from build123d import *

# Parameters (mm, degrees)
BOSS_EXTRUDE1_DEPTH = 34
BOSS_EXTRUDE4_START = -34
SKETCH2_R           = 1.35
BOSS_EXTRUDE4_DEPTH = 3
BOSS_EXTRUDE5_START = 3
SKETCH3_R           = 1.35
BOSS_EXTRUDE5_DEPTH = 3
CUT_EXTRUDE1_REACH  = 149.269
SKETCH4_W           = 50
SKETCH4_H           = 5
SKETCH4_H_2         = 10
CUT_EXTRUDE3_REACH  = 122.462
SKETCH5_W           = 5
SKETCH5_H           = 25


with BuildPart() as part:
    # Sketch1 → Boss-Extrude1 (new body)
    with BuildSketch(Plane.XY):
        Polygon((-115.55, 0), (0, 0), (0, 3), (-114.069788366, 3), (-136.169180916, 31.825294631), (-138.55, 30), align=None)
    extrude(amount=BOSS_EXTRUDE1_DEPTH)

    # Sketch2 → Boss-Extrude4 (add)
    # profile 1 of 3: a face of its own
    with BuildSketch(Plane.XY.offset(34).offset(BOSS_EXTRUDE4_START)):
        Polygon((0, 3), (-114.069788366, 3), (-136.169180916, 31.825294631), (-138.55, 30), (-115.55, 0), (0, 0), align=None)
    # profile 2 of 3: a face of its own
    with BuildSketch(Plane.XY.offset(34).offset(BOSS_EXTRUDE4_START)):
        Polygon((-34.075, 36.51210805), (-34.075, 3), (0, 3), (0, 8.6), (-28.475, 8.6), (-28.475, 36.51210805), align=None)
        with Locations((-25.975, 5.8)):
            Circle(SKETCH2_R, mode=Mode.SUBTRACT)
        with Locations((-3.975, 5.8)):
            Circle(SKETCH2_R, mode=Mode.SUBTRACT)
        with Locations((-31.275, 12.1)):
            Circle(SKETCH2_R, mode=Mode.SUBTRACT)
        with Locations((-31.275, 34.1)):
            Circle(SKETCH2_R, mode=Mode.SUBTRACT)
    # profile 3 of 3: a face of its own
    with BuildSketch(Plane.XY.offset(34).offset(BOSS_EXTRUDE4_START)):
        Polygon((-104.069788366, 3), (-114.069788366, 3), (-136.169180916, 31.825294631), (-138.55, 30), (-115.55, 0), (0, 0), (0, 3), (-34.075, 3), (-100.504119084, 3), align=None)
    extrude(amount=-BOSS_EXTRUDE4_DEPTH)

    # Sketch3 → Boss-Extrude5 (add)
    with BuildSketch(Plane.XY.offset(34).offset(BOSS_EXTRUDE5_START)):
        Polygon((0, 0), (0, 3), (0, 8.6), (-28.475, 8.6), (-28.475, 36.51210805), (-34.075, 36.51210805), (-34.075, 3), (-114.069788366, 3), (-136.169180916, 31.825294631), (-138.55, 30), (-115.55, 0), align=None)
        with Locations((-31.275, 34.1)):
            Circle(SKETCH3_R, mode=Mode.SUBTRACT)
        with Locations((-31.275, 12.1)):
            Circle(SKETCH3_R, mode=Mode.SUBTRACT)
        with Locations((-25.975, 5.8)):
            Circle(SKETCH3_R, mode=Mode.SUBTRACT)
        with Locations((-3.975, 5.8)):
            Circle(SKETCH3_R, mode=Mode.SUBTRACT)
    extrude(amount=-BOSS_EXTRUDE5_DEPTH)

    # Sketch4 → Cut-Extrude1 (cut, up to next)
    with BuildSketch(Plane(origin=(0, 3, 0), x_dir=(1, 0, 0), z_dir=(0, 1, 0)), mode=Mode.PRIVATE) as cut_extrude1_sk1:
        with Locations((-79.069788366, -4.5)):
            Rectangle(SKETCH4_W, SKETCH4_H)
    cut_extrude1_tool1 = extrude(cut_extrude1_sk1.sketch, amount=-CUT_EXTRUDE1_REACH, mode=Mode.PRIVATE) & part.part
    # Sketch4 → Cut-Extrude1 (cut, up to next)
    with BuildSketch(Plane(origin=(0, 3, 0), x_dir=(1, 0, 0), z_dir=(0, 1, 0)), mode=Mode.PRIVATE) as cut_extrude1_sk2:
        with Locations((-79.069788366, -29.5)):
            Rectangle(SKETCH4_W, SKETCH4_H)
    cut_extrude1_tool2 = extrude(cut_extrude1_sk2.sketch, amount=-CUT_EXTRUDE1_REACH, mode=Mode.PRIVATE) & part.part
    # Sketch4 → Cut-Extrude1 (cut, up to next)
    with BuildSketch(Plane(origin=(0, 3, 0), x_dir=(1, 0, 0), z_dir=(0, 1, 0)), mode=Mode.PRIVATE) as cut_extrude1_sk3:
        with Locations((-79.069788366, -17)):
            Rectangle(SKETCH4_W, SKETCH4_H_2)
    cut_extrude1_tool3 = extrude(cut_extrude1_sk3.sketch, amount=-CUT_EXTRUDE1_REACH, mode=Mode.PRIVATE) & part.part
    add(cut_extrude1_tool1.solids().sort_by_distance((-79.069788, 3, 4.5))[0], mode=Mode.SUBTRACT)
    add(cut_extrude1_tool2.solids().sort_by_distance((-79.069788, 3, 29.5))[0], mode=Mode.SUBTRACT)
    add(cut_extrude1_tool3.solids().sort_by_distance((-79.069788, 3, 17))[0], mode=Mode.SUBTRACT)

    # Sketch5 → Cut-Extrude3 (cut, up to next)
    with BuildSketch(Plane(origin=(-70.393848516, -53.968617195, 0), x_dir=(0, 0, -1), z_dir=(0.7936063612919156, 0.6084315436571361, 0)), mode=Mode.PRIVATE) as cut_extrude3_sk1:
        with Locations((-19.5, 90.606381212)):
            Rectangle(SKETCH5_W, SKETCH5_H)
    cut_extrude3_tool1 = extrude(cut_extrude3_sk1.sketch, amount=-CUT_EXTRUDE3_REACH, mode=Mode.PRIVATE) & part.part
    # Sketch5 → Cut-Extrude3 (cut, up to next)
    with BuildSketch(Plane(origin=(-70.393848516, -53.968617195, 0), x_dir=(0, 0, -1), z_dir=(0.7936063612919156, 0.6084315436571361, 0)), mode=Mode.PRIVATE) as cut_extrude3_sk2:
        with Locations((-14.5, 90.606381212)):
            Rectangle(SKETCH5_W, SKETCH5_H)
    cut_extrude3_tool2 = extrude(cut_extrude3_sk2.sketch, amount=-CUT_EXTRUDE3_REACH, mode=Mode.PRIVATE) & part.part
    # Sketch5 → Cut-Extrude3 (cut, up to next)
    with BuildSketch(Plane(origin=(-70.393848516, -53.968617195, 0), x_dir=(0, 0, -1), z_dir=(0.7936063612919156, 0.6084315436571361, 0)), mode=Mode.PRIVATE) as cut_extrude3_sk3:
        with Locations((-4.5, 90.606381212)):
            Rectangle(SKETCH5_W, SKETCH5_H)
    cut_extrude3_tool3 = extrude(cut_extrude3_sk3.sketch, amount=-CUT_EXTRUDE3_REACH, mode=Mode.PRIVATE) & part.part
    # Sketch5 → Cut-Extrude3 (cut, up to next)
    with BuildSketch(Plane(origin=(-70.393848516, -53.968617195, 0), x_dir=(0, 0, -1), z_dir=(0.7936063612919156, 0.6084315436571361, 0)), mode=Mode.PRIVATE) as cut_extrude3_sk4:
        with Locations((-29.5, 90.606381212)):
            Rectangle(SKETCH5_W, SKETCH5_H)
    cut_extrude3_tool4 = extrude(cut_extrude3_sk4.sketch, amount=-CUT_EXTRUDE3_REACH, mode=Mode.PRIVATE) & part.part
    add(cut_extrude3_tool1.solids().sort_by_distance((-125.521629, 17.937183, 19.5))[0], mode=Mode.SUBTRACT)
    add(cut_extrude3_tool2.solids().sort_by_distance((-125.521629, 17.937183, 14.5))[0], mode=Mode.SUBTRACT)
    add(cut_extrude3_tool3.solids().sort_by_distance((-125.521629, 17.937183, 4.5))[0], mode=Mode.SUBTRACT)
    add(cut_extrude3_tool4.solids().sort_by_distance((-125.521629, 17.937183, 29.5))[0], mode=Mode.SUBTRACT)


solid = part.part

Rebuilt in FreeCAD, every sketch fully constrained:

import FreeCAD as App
import Part
import Sketcher
Q = App.Units.Quantity


def add_polygon(sketch, points):
    """Adds a closed chain of lines whose ends are joined by coincident constraints."""
    first, n = sketch.GeometryCount, len(points)
    for a, b in zip(points, points[1:] + points[:1]):
        sketch.addGeometry(Part.LineSegment(App.Vector(*a, 0), App.Vector(*b, 0)), False)
    for i in range(n):
        sketch.addConstraint(Sketcher.Constraint("Coincident", first + i, 2, first + (i + 1) % n, 1))

doc = App.newDocument("Part")
params = doc.addObject("Spreadsheet::Sheet", "Params")
for row, (alias, value) in enumerate([
    ("sketch1_height", "3 mm"),
    ("sketch1_length", "3 mm"),
    ("sketch1_width", "115.55 mm"),
    ("pad1_length", "34 mm"),
    ("sketch2_diameter", "2.7 mm"),
    ("sketch2_length", "3 mm"),
    ("sketch2_width", "5.6 mm"),
    ("sketch2_height", "8.6 mm"),
    ("sketch2_width2", "115.55 mm"),
    ("pad2_length", "3 mm"),
    ("sketch3_diameter", "2.7 mm"),
    ("sketch3_length", "3 mm"),
    ("sketch3_width", "5.6 mm"),
    ("sketch3_height", "8.6 mm"),
    ("sketch3_width2", "115.55 mm"),
    ("pad3_length", "3 mm"),
    ("sketch4_width", "50 mm"),
    ("sketch4_height", "5 mm"),
    ("sketch5_width", "50 mm"),
    ("sketch5_height", "5 mm"),
    ("sketch6_width", "50 mm"),
    ("sketch6_height", "10 mm"),
    ("sketch7_width", "5 mm"),
    ("sketch7_height", "25 mm"),
    ("sketch8_width", "5 mm"),
    ("sketch8_height", "25 mm"),
    ("sketch9_width", "5 mm"),
    ("sketch9_height", "25 mm"),
    ("sketch10_width", "5 mm"),
    ("sketch10_height", "25 mm"),
], start=1):
    params.set(f"A{row}", alias)
    params.set(f"B{row}", "=" + value)
    params.setAlias(f"B{row}", alias)

body = doc.addObject("PartDesign::Body", "Body")

# Sketch on XY plane
sketch1 = doc.addObject("Sketcher::SketchObject", "Sketch")
body.addObject(sketch1)
sketch1.AttachmentSupport = (doc.XY_Plane, [""])
sketch1.MapMode = "FlatFace"
add_polygon(sketch1, [(-115.5, 0), (0, 0), (0, 3), (-114.1, 3), (-136.2, 31.8), (-138.6, 30)])  # lines 0-5
sketch1.addConstraint(Sketcher.Constraint("Horizontal", 0))
sketch1.addConstraint(Sketcher.Constraint("Vertical", 1))
sketch1.addConstraint(Sketcher.Constraint("Horizontal", 2))
sketch1.addConstraint(Sketcher.Constraint("Coincident", 0, 2, -1, 1))
sketch1.addConstraint(Sketcher.Constraint("Perpendicular", 3, 4))
sketch1.addConstraint(Sketcher.Constraint("Perpendicular", 4, 5))
sketch1.addConstraint(Sketcher.Constraint("DistanceY", 1, 1, 1, 2, Q("3 mm")))
sketch1.addConstraint(Sketcher.Constraint("Distance", 4, Q("3 mm")))
sketch1.addConstraint(Sketcher.Constraint("DistanceY", -1, 1, 4, 2, Q("30 mm")))
sketch1.addConstraint(Sketcher.Constraint("DistanceX", 4, 2, 5, 2, Q("23 mm")))
sketch1.addConstraint(Sketcher.Constraint("DistanceX", 0, 1, 0, 2, Q("115.55 mm")))
sketch1.setExpression("Constraints[12]", "Params.sketch1_height")
sketch1.setExpression("Constraints[13]", "Params.sketch1_length")
sketch1.setExpression("Constraints[16]", "Params.sketch1_width")
pad1 = doc.addObject("PartDesign::Pad", "Pad")
body.addObject(pad1)
pad1.Profile = sketch1
pad1.setExpression("Length", "Params.pad1_length")

# Sketch on XY plane
sketch2 = doc.addObject("Sketcher::SketchObject", "Sketch001")
body.addObject(sketch2)
sketch2.AttachmentSupport = (doc.XY_Plane, [""])
sketch2.MapMode = "FlatFace"
add_polygon(sketch2, [(-34.1, 3), (-114.1, 3), (-136.2, 31.8), (-138.6, 30), (-115.5, 0), (0, 0), (0, 8.6), (-28.5, 8.6), (-28.5, 36.5), (-34.1, 36.5)])  # lines 0-9
sketch2.addGeometry(Part.Circle(App.Vector(-31.3, 34.1, 0), App.Vector(0, 0, 1), 1.4), False)  # 10
sketch2.addGeometry(Part.Circle(App.Vector(-26, 5.8, 0), App.Vector(0, 0, 1), 1.4), False)  # 11
sketch2.addGeometry(Part.Circle(App.Vector(-31.3, 12.1, 0), App.Vector(0, 0, 1), 1.4), False)  # 12
sketch2.addGeometry(Part.Circle(App.Vector(-4, 5.8, 0), App.Vector(0, 0, 1), 1.4), False)  # 13
sketch2.addConstraint(Sketcher.Constraint("Horizontal", 0))
sketch2.addConstraint(Sketcher.Constraint("Horizontal", 4))
sketch2.addConstraint(Sketcher.Constraint("Vertical", 5))
sketch2.addConstraint(Sketcher.Constraint("Horizontal", 6))
sketch2.addConstraint(Sketcher.Constraint("Vertical", 7))
sketch2.addConstraint(Sketcher.Constraint("Horizontal", 8))
sketch2.addConstraint(Sketcher.Constraint("Vertical", 9))
sketch2.addConstraint(Sketcher.Constraint("Coincident", 4, 2, -1, 1))
sketch2.addConstraint(Sketcher.Constraint("Equal", 10, 11))
sketch2.addConstraint(Sketcher.Constraint("Equal", 11, 12))
sketch2.addConstraint(Sketcher.Constraint("Equal", 12, 13))
sketch2.addConstraint(Sketcher.Constraint("Perpendicular", 1, 2))
sketch2.addConstraint(Sketcher.Constraint("Perpendicular", 2, 3))
sketch2.addConstraint(Sketcher.Constraint("Horizontal", 11, 3, 13, 3))
sketch2.addConstraint(Sketcher.Constraint("Vertical", 10, 3, 12, 3))
sketch2.addConstraint(Sketcher.Constraint("Diameter", 10, Q("2.7 mm")))
sketch2.addConstraint(Sketcher.Constraint("Distance", 2, Q("3 mm")))
sketch2.addConstraint(Sketcher.Constraint("DistanceX", 8, 2, 8, 1, Q("5.6 mm")))
sketch2.addConstraint(Sketcher.Constraint("DistanceY", 5, 1, 5, 2, Q("8.6 mm")))
sketch2.addConstraint(Sketcher.Constraint("DistanceY", -1, 1, 0, 2, Q("3 mm")))
sketch2.addConstraint(Sketcher.Constraint("DistanceY", -1, 1, 2, 2, Q("30 mm")))
sketch2.addConstraint(Sketcher.Constraint("DistanceY", 12, 3, 10, 3, Q("22 mm")))
sketch2.addConstraint(Sketcher.Constraint("DistanceX", 11, 3, 13, 3, Q("22 mm")))
sketch2.addConstraint(Sketcher.Constraint("DistanceX", 2, 2, 3, 2, Q("23 mm")))
sketch2.addConstraint(Sketcher.Constraint("DistanceX", 4, 1, 4, 2, Q("115.55 mm")))
sketch2.addConstraint(Sketcher.Constraint("DistanceY", -1, 1, 10, 3, Q("34.1 mm")))
sketch2.addConstraint(Sketcher.Constraint("DistanceY", -1, 1, 11, 3, Q("5.8 mm")))
sketch2.addConstraint(Sketcher.Constraint("DistanceX", 10, 3, 11, 3, Q("5.3 mm")))
sketch2.addConstraint(Sketcher.Constraint("DistanceX", 6, 2, 11, 3, Q("2.5 mm")))
sketch2.addConstraint(Sketcher.Constraint("DistanceX", 6, 2, 6, 1, Q("28.475 mm")))
sketch2.addConstraint(Sketcher.Constraint("DistanceY", 7, 1, 7, 2, Q("27.912108 mm")))
sketch2.setExpression("Constraints[25]", "Params.sketch2_diameter")
sketch2.setExpression("Constraints[26]", "Params.sketch2_length")
sketch2.setExpression("Constraints[27]", "Params.sketch2_width")
sketch2.setExpression("Constraints[28]", "Params.sketch2_height")
sketch2.setExpression("Constraints[34]", "Params.sketch2_width2")
pad2 = doc.addObject("PartDesign::Pad", "Pad001")
body.addObject(pad2)
pad2.Profile = sketch2
pad2.setExpression("Length", "Params.pad2_length")
pad2.Reversed = True

# Sketch on XY plane
sketch3 = doc.addObject("Sketcher::SketchObject", "Sketch002")
body.addObject(sketch3)
sketch3.AttachmentSupport = (doc.XY_Plane, [""])
sketch3.MapMode = "FlatFace"
sketch3.AttachmentOffset = App.Placement(App.Vector(0, 0, 37), App.Rotation())
add_polygon(sketch3, [(0, 0), (0, 8.6), (-28.5, 8.6), (-28.5, 36.5), (-34.1, 36.5), (-34.1, 3), (-114.1, 3), (-136.2, 31.8), (-138.6, 30), (-115.5, 0)])  # lines 0-9
sketch3.addGeometry(Part.Circle(App.Vector(-26, 5.8, 0), App.Vector(0, 0, 1), 1.4), False)  # 10
sketch3.addGeometry(Part.Circle(App.Vector(-31.3, 12.1, 0), App.Vector(0, 0, 1), 1.4), False)  # 11
sketch3.addGeometry(Part.Circle(App.Vector(-4, 5.8, 0), App.Vector(0, 0, 1), 1.4), False)  # 12
sketch3.addGeometry(Part.Circle(App.Vector(-31.3, 34.1, 0), App.Vector(0, 0, 1), 1.4), False)  # 13
sketch3.addConstraint(Sketcher.Constraint("Vertical", 0))
sketch3.addConstraint(Sketcher.Constraint("Horizontal", 1))
sketch3.addConstraint(Sketcher.Constraint("Vertical", 2))
sketch3.addConstraint(Sketcher.Constraint("Horizontal", 3))
sketch3.addConstraint(Sketcher.Constraint("Vertical", 4))
sketch3.addConstraint(Sketcher.Constraint("Horizontal", 5))
sketch3.addConstraint(Sketcher.Constraint("Horizontal", 9))
sketch3.addConstraint(Sketcher.Constraint("Coincident", 9, 2, -1, 1))
sketch3.addConstraint(Sketcher.Constraint("Equal", 10, 11))
sketch3.addConstraint(Sketcher.Constraint("Equal", 11, 12))
sketch3.addConstraint(Sketcher.Constraint("Equal", 12, 13))
sketch3.addConstraint(Sketcher.Constraint("Perpendicular", 6, 7))
sketch3.addConstraint(Sketcher.Constraint("Perpendicular", 7, 8))
sketch3.addConstraint(Sketcher.Constraint("Horizontal", 10, 3, 12, 3))
sketch3.addConstraint(Sketcher.Constraint("Vertical", 11, 3, 13, 3))
sketch3.addConstraint(Sketcher.Constraint("Diameter", 10, Q("2.7 mm")))
sketch3.addConstraint(Sketcher.Constraint("Distance", 7, Q("3 mm")))
sketch3.addConstraint(Sketcher.Constraint("DistanceX", 3, 2, 3, 1, Q("5.6 mm")))
sketch3.addConstraint(Sketcher.Constraint("DistanceY", 0, 1, 0, 2, Q("8.6 mm")))
sketch3.addConstraint(Sketcher.Constraint("DistanceY", -1, 1, 4, 2, Q("3 mm")))
sketch3.addConstraint(Sketcher.Constraint("DistanceY", -1, 1, 7, 2, Q("30 mm")))
sketch3.addConstraint(Sketcher.Constraint("DistanceX", 10, 3, 12, 3, Q("22 mm")))
sketch3.addConstraint(Sketcher.Constraint("DistanceY", 11, 3, 13, 3, Q("22 mm")))
sketch3.addConstraint(Sketcher.Constraint("DistanceX", 7, 2, 8, 2, Q("23 mm")))
sketch3.addConstraint(Sketcher.Constraint("DistanceX", 9, 1, 9, 2, Q("115.55 mm")))
sketch3.addConstraint(Sketcher.Constraint("DistanceY", -1, 1, 10, 3, Q("5.8 mm")))
sketch3.addConstraint(Sketcher.Constraint("DistanceY", -1, 1, 11, 3, Q("12.1 mm")))
sketch3.addConstraint(Sketcher.Constraint("DistanceX", 11, 3, 10, 3, Q("5.3 mm")))
sketch3.addConstraint(Sketcher.Constraint("DistanceX", 1, 2, 10, 3, Q("2.5 mm")))
sketch3.addConstraint(Sketcher.Constraint("DistanceX", 1, 2, 1, 1, Q("28.475 mm")))
sketch3.addConstraint(Sketcher.Constraint("DistanceY", 2, 1, 2, 2, Q("27.912108 mm")))
sketch3.setExpression("Constraints[25]", "Params.sketch3_diameter")
sketch3.setExpression("Constraints[26]", "Params.sketch3_length")
sketch3.setExpression("Constraints[27]", "Params.sketch3_width")
sketch3.setExpression("Constraints[28]", "Params.sketch3_height")
sketch3.setExpression("Constraints[34]", "Params.sketch3_width2")
pad3 = doc.addObject("PartDesign::Pad", "Pad002")
body.addObject(pad3)
pad3.Profile = sketch3
pad3.setExpression("Length", "Params.pad3_length")
pad3.Reversed = True

# Sketch on XZ plane
sketch4 = doc.addObject("Sketcher::SketchObject", "Sketch003")
body.addObject(sketch4)
sketch4.AttachmentSupport = (doc.XZ_Plane, [""])
sketch4.MapMode = "FlatFace"
sketch4.AttachmentOffset = App.Placement(App.Vector(0, 0, -3), App.Rotation())
add_polygon(sketch4, [(-104, 2), (-104, 7), (-54, 7), (-54, 2)])  # lines 0-3
sketch4.addConstraint(Sketcher.Constraint("Vertical", 0))
sketch4.addConstraint(Sketcher.Constraint("Horizontal", 1))
sketch4.addConstraint(Sketcher.Constraint("Vertical", 2))
sketch4.addConstraint(Sketcher.Constraint("Horizontal", 3))
sketch4.addConstraint(Sketcher.Constraint("DistanceX", 1, 1, 1, 2, Q("50 mm")))
sketch4.addConstraint(Sketcher.Constraint("DistanceY", 0, 1, 0, 2, Q("5 mm")))
sketch4.addConstraint(Sketcher.Constraint("DistanceY", -1, 1, 0, 2, Q("7 mm")))
sketch4.addConstraint(Sketcher.Constraint("DistanceX", 0, 2, -1, 1, Q("104.069788 mm")))
sketch4.setExpression("Constraints[8]", "Params.sketch4_width")
sketch4.setExpression("Constraints[9]", "Params.sketch4_height")
pocket1 = doc.addObject("PartDesign::Pocket", "Pocket")
body.addObject(pocket1)
pocket1.Profile = sketch4
pocket1.Type = "UpToFirst"
pocket1.Reversed = True

# Sketch on XZ plane
sketch5 = doc.addObject("Sketcher::SketchObject", "Sketch004")
body.addObject(sketch5)
sketch5.AttachmentSupport = (doc.XZ_Plane, [""])
sketch5.MapMode = "FlatFace"
sketch5.AttachmentOffset = App.Placement(App.Vector(0, 0, -3), App.Rotation())
add_polygon(sketch5, [(-104, 27), (-104, 32), (-54, 32), (-54, 27)])  # lines 0-3
sketch5.addConstraint(Sketcher.Constraint("Vertical", 0))
sketch5.addConstraint(Sketcher.Constraint("Horizontal", 1))
sketch5.addConstraint(Sketcher.Constraint("Vertical", 2))
sketch5.addConstraint(Sketcher.Constraint("Horizontal", 3))
sketch5.addConstraint(Sketcher.Constraint("DistanceX", 1, 1, 1, 2, Q("50 mm")))
sketch5.addConstraint(Sketcher.Constraint("DistanceY", 0, 1, 0, 2, Q("5 mm")))
sketch5.addConstraint(Sketcher.Constraint("DistanceY", -1, 1, 0, 2, Q("32 mm")))
sketch5.addConstraint(Sketcher.Constraint("DistanceX", 0, 2, -1, 1, Q("104.069788 mm")))
sketch5.setExpression("Constraints[8]", "Params.sketch5_width")
sketch5.setExpression("Constraints[9]", "Params.sketch5_height")
pocket2 = doc.addObject("PartDesign::Pocket", "Pocket001")
body.addObject(pocket2)
pocket2.Profile = sketch5
pocket2.Type = "UpToFirst"
pocket2.Reversed = True

# Sketch on XZ plane
sketch6 = doc.addObject("Sketcher::SketchObject", "Sketch005")
body.addObject(sketch6)
sketch6.AttachmentSupport = (doc.XZ_Plane, [""])
sketch6.MapMode = "FlatFace"
sketch6.AttachmentOffset = App.Placement(App.Vector(0, 0, -3), App.Rotation())
add_polygon(sketch6, [(-104, 12), (-104, 22), (-54, 22), (-54, 12)])  # lines 0-3
sketch6.addConstraint(Sketcher.Constraint("Vertical", 0))
sketch6.addConstraint(Sketcher.Constraint("Horizontal", 1))
sketch6.addConstraint(Sketcher.Constraint("Vertical", 2))
sketch6.addConstraint(Sketcher.Constraint("Horizontal", 3))
sketch6.addConstraint(Sketcher.Constraint("DistanceX", 1, 1, 1, 2, Q("50 mm")))
sketch6.addConstraint(Sketcher.Constraint("DistanceY", 0, 1, 0, 2, Q("10 mm")))
sketch6.addConstraint(Sketcher.Constraint("DistanceY", -1, 1, 0, 2, Q("22 mm")))
sketch6.addConstraint(Sketcher.Constraint("DistanceX", 0, 2, -1, 1, Q("104.069788 mm")))
sketch6.setExpression("Constraints[8]", "Params.sketch6_width")
sketch6.setExpression("Constraints[9]", "Params.sketch6_height")
pocket3 = doc.addObject("PartDesign::Pocket", "Pocket002")
body.addObject(pocket3)
pocket3.Profile = sketch6
pocket3.Type = "UpToFirst"
pocket3.Reversed = True

# Sketch on an angled plane
sketch7 = doc.addObject("Sketcher::SketchObject", "Sketch006")
body.addObject(sketch7)
sketch7.Placement = App.Placement(App.Vector(-70.393849, -53.968617, 0), App.Rotation(App.Vector(0, 0, -1), App.Vector(-0.608431544, 0.793606361, 0), App.Vector(0.793606361, 0.608431544, 0), "ZXY"))
add_polygon(sketch7, [(-22, 103), (-22, 78), (-17, 78), (-17, 103)])  # lines 0-3
sketch7.addConstraint(Sketcher.Constraint("Vertical", 0))
sketch7.addConstraint(Sketcher.Constraint("Horizontal", 1))
sketch7.addConstraint(Sketcher.Constraint("Vertical", 2))
sketch7.addConstraint(Sketcher.Constraint("Horizontal", 3))
sketch7.addConstraint(Sketcher.Constraint("DistanceX", 1, 1, 1, 2, Q("5 mm")))
sketch7.addConstraint(Sketcher.Constraint("DistanceY", 0, 2, 0, 1, Q("25 mm")))
sketch7.addConstraint(Sketcher.Constraint("DistanceX", 0, 2, -1, 1, Q("22 mm")))
sketch7.addConstraint(Sketcher.Constraint("DistanceY", -1, 1, 0, 2, Q("78.106381 mm")))
sketch7.setExpression("Constraints[8]", "Params.sketch7_width")
sketch7.setExpression("Constraints[9]", "Params.sketch7_height")
pocket4 = doc.addObject("PartDesign::Pocket", "Pocket003")
body.addObject(pocket4)
pocket4.Profile = sketch7
pocket4.Type = "UpToFirst"

# Sketch on an angled plane
sketch8 = doc.addObject("Sketcher::SketchObject", "Sketch007")
body.addObject(sketch8)
sketch8.Placement = App.Placement(App.Vector(-70.393849, -53.968617, 0), App.Rotation(App.Vector(0, 0, -1), App.Vector(-0.608431544, 0.793606361, 0), App.Vector(0.793606361, 0.608431544, 0), "ZXY"))
add_polygon(sketch8, [(-17, 103), (-17, 78), (-12, 78), (-12, 103)])  # lines 0-3
sketch8.addConstraint(Sketcher.Constraint("Vertical", 0))
sketch8.addConstraint(Sketcher.Constraint("Horizontal", 1))
sketch8.addConstraint(Sketcher.Constraint("Vertical", 2))
sketch8.addConstraint(Sketcher.Constraint("Horizontal", 3))
sketch8.addConstraint(Sketcher.Constraint("DistanceX", 1, 1, 1, 2, Q("5 mm")))
sketch8.addConstraint(Sketcher.Constraint("DistanceY", 0, 2, 0, 1, Q("25 mm")))
sketch8.addConstraint(Sketcher.Constraint("DistanceX", 0, 2, -1, 1, Q("17 mm")))
sketch8.addConstraint(Sketcher.Constraint("DistanceY", -1, 1, 0, 2, Q("78.106381 mm")))
sketch8.setExpression("Constraints[8]", "Params.sketch8_width")
sketch8.setExpression("Constraints[9]", "Params.sketch8_height")
pocket5 = doc.addObject("PartDesign::Pocket", "Pocket004")
body.addObject(pocket5)
pocket5.Profile = sketch8
pocket5.Type = "UpToFirst"

# Sketch on an angled plane
sketch9 = doc.addObject("Sketcher::SketchObject", "Sketch008")
body.addObject(sketch9)
sketch9.Placement = App.Placement(App.Vector(-70.393849, -53.968617, 0), App.Rotation(App.Vector(0, 0, -1), App.Vector(-0.608431544, 0.793606361, 0), App.Vector(0.793606361, 0.608431544, 0), "ZXY"))
add_polygon(sketch9, [(-7, 103), (-7, 78), (-2, 78), (-2, 103)])  # lines 0-3
sketch9.addConstraint(Sketcher.Constraint("Vertical", 0))
sketch9.addConstraint(Sketcher.Constraint("Horizontal", 1))
sketch9.addConstraint(Sketcher.Constraint("Vertical", 2))
sketch9.addConstraint(Sketcher.Constraint("Horizontal", 3))
sketch9.addConstraint(Sketcher.Constraint("DistanceX", 1, 1, 1, 2, Q("5 mm")))
sketch9.addConstraint(Sketcher.Constraint("DistanceY", 0, 2, 0, 1, Q("25 mm")))
sketch9.addConstraint(Sketcher.Constraint("DistanceX", 0, 2, -1, 1, Q("7 mm")))
sketch9.addConstraint(Sketcher.Constraint("DistanceY", -1, 1, 0, 2, Q("78.106381 mm")))
sketch9.setExpression("Constraints[8]", "Params.sketch9_width")
sketch9.setExpression("Constraints[9]", "Params.sketch9_height")
pocket6 = doc.addObject("PartDesign::Pocket", "Pocket005")
body.addObject(pocket6)
pocket6.Profile = sketch9
pocket6.Type = "UpToFirst"

# Sketch on an angled plane
sketch10 = doc.addObject("Sketcher::SketchObject", "Sketch009")
body.addObject(sketch10)
sketch10.Placement = App.Placement(App.Vector(-70.393849, -53.968617, 0), App.Rotation(App.Vector(0, 0, -1), App.Vector(-0.608431544, 0.793606361, 0), App.Vector(0.793606361, 0.608431544, 0), "ZXY"))
add_polygon(sketch10, [(-32, 103), (-32, 78), (-27, 78), (-27, 103)])  # lines 0-3
sketch10.addConstraint(Sketcher.Constraint("Vertical", 0))
sketch10.addConstraint(Sketcher.Constraint("Horizontal", 1))
sketch10.addConstraint(Sketcher.Constraint("Vertical", 2))
sketch10.addConstraint(Sketcher.Constraint("Horizontal", 3))
sketch10.addConstraint(Sketcher.Constraint("DistanceX", 1, 1, 1, 2, Q("5 mm")))
sketch10.addConstraint(Sketcher.Constraint("DistanceY", 0, 2, 0, 1, Q("25 mm")))
sketch10.addConstraint(Sketcher.Constraint("DistanceX", 0, 2, -1, 1, Q("32 mm")))
sketch10.addConstraint(Sketcher.Constraint("DistanceY", -1, 1, 0, 2, Q("78.106381 mm")))
sketch10.setExpression("Constraints[8]", "Params.sketch10_width")
sketch10.setExpression("Constraints[9]", "Params.sketch10_height")
pocket7 = doc.addObject("PartDesign::Pocket", "Pocket006")
body.addObject(pocket7)
pocket7.Profile = sketch10
pocket7.Type = "UpToFirst"

doc.recompute()
